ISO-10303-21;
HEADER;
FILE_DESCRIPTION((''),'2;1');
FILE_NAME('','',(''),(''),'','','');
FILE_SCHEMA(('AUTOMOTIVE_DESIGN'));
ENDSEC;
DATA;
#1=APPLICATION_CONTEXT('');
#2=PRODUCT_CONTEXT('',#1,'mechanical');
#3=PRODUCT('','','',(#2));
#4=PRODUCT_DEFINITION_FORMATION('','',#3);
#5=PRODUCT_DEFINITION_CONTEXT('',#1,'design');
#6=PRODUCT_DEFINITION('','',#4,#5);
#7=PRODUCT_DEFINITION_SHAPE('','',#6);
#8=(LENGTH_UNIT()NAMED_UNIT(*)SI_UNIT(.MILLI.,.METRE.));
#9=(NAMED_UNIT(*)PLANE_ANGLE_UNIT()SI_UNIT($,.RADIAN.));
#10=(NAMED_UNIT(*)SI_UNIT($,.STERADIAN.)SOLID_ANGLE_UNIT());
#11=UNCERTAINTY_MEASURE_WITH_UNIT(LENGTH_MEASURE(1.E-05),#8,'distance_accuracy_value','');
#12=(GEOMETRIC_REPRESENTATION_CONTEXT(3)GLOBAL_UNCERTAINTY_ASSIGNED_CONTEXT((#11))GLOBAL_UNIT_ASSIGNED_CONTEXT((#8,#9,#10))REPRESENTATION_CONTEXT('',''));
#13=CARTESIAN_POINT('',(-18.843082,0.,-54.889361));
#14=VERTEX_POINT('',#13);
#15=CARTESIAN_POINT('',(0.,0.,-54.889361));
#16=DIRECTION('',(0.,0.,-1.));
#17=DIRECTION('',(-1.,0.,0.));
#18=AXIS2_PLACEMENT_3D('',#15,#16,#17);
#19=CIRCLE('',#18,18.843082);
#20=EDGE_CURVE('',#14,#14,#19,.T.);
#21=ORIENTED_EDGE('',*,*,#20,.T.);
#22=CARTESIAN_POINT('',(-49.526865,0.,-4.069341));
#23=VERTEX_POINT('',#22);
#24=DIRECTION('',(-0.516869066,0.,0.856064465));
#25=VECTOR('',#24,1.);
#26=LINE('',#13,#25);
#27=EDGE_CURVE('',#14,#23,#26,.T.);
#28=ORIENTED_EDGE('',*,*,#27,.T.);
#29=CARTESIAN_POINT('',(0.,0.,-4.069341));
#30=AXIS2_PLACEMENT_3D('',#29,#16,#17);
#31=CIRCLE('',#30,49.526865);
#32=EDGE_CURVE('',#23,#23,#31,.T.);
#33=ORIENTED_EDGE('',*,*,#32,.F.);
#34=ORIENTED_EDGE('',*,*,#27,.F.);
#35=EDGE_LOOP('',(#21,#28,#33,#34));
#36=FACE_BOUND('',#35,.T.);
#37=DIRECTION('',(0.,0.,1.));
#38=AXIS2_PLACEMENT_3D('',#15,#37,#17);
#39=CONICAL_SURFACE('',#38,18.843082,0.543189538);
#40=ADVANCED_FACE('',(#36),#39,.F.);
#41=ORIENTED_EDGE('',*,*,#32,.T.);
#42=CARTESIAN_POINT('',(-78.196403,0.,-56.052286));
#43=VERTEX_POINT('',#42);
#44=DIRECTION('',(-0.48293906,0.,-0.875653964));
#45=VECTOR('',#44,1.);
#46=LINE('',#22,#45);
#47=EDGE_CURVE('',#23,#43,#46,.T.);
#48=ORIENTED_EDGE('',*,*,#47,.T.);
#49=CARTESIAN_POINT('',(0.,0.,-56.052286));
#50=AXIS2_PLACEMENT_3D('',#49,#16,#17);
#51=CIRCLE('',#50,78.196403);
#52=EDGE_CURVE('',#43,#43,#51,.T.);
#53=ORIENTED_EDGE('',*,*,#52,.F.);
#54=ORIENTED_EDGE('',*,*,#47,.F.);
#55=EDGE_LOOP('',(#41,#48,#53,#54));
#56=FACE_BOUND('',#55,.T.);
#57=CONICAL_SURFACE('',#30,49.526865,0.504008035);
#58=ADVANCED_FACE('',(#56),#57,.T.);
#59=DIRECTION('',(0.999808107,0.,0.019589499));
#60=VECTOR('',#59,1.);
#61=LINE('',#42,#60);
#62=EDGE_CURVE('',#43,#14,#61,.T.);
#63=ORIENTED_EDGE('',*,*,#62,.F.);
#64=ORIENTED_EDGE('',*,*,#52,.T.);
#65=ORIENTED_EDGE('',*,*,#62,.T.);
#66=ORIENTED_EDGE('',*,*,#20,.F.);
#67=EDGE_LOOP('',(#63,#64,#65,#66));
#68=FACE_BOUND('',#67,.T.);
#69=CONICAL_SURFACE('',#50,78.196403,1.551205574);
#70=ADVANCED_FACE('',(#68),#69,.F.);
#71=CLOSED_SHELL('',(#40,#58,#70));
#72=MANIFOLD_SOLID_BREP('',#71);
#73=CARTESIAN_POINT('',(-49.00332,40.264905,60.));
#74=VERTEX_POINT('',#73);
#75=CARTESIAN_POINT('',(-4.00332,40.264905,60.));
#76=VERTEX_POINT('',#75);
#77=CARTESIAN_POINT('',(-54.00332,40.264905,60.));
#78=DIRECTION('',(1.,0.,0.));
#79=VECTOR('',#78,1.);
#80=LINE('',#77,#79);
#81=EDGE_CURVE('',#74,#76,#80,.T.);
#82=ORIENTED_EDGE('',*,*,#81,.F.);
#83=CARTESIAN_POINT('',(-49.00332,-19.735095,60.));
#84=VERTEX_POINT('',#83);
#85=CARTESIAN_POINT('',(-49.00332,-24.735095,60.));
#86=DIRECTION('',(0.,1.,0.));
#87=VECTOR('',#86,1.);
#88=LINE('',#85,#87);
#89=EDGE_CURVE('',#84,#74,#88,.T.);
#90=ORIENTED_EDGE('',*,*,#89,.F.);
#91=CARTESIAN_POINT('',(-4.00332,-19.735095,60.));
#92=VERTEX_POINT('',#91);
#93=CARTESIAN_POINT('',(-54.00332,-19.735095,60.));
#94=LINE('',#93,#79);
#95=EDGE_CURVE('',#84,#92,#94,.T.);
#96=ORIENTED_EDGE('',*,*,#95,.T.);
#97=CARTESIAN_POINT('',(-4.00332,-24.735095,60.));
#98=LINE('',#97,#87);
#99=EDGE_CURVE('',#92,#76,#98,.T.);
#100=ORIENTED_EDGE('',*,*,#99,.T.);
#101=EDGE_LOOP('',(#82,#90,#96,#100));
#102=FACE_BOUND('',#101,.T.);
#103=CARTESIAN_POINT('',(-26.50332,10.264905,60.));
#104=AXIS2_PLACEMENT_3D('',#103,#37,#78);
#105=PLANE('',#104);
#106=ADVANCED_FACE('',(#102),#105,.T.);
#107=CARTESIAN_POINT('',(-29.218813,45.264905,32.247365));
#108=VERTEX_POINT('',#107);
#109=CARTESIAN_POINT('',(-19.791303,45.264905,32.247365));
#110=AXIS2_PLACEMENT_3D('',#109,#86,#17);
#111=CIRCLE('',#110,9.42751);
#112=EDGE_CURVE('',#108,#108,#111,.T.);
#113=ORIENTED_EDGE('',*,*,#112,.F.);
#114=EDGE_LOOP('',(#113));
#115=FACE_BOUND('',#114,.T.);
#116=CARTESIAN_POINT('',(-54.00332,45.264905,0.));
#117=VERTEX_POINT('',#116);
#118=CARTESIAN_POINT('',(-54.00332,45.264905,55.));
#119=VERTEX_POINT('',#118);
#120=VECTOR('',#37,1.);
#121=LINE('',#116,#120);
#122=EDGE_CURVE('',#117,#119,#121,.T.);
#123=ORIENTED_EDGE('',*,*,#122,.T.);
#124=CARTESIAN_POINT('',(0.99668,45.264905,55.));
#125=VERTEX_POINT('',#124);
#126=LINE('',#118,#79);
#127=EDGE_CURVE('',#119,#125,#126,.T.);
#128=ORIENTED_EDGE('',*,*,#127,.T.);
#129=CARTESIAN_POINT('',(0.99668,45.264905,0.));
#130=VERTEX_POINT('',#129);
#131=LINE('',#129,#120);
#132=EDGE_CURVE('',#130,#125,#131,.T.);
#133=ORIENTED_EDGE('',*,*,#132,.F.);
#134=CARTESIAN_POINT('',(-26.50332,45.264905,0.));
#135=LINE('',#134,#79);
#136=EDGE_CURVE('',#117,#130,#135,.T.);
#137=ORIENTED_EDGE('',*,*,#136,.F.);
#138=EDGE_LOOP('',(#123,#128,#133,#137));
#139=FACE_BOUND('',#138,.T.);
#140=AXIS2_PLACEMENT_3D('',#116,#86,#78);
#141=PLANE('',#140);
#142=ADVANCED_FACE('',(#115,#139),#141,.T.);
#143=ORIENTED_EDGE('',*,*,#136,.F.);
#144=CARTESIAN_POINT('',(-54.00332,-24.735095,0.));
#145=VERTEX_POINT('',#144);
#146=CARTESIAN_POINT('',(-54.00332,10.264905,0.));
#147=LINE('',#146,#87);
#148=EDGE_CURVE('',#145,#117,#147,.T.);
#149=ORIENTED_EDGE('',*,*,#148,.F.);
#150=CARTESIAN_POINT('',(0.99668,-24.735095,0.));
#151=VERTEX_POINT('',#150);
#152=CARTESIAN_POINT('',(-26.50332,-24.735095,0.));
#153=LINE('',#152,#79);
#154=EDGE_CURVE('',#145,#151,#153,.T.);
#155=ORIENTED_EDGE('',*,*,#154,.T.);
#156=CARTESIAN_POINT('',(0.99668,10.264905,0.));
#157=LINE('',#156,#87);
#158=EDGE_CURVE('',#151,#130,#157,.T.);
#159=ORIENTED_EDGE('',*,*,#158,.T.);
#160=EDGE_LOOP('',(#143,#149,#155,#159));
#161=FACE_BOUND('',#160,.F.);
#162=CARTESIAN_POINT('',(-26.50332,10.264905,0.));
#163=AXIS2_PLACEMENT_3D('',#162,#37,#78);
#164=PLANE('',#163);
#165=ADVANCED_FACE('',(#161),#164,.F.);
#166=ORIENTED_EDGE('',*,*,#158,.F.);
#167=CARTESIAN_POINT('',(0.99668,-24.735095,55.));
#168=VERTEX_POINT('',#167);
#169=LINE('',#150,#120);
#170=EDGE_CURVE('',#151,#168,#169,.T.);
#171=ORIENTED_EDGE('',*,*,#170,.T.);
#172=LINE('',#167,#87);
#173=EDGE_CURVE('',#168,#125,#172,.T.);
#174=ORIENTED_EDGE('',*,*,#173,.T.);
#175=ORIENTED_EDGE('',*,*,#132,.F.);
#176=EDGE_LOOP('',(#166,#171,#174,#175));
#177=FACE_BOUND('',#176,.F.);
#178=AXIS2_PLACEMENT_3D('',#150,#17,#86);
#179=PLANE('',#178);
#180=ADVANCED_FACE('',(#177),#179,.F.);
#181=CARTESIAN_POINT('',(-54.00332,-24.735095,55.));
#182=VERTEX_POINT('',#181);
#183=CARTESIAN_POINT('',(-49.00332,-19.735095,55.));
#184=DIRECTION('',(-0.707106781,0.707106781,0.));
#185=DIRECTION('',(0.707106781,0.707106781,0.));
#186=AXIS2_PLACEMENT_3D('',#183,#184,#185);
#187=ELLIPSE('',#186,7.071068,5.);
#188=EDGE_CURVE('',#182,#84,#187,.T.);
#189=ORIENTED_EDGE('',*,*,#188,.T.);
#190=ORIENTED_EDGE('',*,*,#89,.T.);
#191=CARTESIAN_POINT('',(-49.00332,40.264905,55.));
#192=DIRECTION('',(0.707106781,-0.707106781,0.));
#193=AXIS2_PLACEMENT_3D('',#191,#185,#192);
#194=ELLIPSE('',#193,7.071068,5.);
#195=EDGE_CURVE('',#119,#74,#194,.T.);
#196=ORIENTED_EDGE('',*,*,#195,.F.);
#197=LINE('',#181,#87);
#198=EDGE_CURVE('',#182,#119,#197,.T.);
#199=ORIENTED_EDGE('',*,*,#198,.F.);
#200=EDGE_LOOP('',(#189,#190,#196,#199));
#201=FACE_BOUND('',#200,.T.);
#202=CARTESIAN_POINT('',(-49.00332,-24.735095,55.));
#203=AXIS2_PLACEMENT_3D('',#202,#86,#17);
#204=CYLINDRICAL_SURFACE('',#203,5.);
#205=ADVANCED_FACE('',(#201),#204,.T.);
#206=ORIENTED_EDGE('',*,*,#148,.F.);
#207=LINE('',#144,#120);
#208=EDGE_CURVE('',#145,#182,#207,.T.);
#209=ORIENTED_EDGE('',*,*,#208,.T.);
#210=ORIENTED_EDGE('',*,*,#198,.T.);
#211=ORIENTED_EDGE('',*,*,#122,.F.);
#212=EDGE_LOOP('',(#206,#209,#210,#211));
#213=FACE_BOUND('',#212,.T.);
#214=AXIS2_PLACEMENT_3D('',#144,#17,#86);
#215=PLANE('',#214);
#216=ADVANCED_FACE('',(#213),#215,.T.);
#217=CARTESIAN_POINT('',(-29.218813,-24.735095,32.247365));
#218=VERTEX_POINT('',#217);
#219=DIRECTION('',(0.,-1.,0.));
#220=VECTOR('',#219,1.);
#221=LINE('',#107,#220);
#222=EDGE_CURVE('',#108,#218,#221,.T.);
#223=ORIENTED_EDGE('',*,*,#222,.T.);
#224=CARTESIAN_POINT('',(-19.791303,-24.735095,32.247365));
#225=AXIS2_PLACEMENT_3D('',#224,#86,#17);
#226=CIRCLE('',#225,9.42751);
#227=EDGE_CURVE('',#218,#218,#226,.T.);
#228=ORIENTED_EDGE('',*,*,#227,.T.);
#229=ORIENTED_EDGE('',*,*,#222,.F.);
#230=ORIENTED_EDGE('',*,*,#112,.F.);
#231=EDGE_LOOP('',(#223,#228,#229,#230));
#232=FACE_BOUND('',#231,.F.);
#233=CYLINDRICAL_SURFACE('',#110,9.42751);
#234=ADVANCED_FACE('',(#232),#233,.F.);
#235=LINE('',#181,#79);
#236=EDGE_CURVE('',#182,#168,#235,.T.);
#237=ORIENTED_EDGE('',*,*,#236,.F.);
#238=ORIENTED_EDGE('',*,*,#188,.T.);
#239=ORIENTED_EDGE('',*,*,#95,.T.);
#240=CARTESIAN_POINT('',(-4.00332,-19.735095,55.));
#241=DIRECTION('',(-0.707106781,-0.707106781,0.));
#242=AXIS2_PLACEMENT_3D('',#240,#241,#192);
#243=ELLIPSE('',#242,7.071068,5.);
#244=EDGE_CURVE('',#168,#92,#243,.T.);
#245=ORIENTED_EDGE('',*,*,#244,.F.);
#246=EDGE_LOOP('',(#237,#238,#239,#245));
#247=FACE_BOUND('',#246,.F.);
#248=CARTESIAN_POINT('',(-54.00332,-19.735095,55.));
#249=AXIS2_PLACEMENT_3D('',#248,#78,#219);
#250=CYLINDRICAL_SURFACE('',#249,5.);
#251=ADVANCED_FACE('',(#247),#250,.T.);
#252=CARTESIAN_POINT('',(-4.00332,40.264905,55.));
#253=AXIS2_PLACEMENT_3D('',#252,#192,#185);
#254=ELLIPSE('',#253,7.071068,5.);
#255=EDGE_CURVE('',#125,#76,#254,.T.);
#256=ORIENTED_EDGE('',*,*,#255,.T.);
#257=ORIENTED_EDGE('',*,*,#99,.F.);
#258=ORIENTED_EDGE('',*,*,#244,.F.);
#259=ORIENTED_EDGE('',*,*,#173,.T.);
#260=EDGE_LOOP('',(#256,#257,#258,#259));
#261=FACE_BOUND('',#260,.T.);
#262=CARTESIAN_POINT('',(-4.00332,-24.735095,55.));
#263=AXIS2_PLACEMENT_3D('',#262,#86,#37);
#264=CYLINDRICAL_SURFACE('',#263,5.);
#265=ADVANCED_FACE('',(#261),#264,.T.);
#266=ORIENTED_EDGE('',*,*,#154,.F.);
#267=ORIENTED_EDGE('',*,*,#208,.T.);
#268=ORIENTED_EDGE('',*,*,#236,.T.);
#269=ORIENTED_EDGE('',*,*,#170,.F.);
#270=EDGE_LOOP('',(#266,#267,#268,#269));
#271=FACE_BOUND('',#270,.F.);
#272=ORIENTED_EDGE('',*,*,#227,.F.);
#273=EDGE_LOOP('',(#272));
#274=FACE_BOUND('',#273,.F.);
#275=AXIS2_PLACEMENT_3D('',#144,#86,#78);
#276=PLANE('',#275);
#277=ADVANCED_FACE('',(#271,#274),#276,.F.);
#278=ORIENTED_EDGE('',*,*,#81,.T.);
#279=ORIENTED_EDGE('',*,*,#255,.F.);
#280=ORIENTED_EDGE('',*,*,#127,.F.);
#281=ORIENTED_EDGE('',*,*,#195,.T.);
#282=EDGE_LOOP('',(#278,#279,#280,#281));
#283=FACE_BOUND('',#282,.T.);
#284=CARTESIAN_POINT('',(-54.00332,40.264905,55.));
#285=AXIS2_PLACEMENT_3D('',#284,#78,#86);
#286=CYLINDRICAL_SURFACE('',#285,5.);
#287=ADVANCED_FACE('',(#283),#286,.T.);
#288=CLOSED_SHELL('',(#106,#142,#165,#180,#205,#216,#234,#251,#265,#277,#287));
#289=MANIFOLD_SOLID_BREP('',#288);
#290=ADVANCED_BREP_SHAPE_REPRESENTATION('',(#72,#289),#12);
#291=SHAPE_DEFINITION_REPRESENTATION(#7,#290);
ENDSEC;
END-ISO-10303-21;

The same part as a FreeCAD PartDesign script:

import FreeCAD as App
import Part
import Sketcher

V = App.Vector
Q = App.Units.Quantity


def edges_at(feature, points):
    """Names of the edges that pass closest to the given points."""
    edges = feature.Shape.Edges
    near = lambda p: min(range(len(edges)), key=lambda i: edges[i].distToShape(Part.Vertex(*p))[0])
    return sorted({f"Edge{near(p) + 1}" for p in points})

doc = App.newDocument("Part")
body = doc.addObject("PartDesign::Body", "Body")

sketch1 = body.newObject("Sketcher::SketchObject", "Sketch")
sketch1.AttachmentSupport = (doc.getObject("XY_Plane"), [""])
sketch1.MapMode = "FlatFace"
sketch1.addGeometry(Part.LineSegment(V(-54, 45, 0), V(-54, -25, 0)), False)
sketch1.addGeometry(Part.LineSegment(V(-54, -25, 0), V(1, -25, 0)), False)
sketch1.addGeometry(Part.LineSegment(V(1, -25, 0), V(1, 45, 0)), False)
sketch1.addGeometry(Part.LineSegment(V(1, 45, 0), V(-54, 45, 0)), False)
sketch1.addConstraint(Sketcher.Constraint("Coincident", 0, 2, 1, 1))
sketch1.addConstraint(Sketcher.Constraint("Coincident", 1, 2, 2, 1))
sketch1.addConstraint(Sketcher.Constraint("Coincident", 2, 2, 3, 1))
sketch1.addConstraint(Sketcher.Constraint("Coincident", 3, 2, 0, 1))
sketch1.addConstraint(Sketcher.Constraint("Vertical", 0))
sketch1.addConstraint(Sketcher.Constraint("Horizontal", 1))
sketch1.addConstraint(Sketcher.Constraint("Vertical", 2))
sketch1.addConstraint(Sketcher.Constraint("Horizontal", 3))
sketch1.addConstraint(Sketcher.Constraint("DistanceX", 1, 1, 1, 2, Q("55 mm")))
sketch1.addConstraint(Sketcher.Constraint("DistanceY", 0, 2, 0, 1, Q("70 mm")))
sketch1.addConstraint(Sketcher.Constraint("DistanceX", 0, 2, -1, 1, Q("54.00332 mm")))
sketch1.addConstraint(Sketcher.Constraint("DistanceY", 0, 2, -1, 1, Q("24.735095 mm")))
pad1 = body.newObject("PartDesign::Pad", "Pad")
pad1.Profile = sketch1
pad1.Length = 60

sketch2 = body.newObject("Sketcher::SketchObject", "Sketch001")
sketch2.AttachmentSupport = (doc.getObject("XZ_Plane"), [""])
sketch2.MapMode = "FlatFace"
sketch2.AttachmentOffset = App.Placement(V(0, 0, -45.264905), App.Rotation())
sketch2.addGeometry(Part.Circle(V(-20, 32, 0), V(0, 0, 1), 9), False)
sketch2.addConstraint(Sketcher.Constraint("Diameter", 0, Q("18.85502 mm")))
sketch2.addConstraint(Sketcher.Constraint("DistanceX", 0, 3, -1, 1, Q("19.791303 mm")))
sketch2.addConstraint(Sketcher.Constraint("DistanceY", -1, 1, 0, 3, Q("32.247365 mm")))
pocket1 = body.newObject("PartDesign::Pocket", "Pocket")
pocket1.Profile = sketch2
pocket1.Length = 90
pocket1.Reversed = True
doc.recompute()

fillet = body.newObject("PartDesign::Fillet", "Fillet")
fillet.Base = (pocket1, edges_at(pocket1, [
    (-26.503, 45.265, 60),
    (-54.003, 10.265, 60),
    (-26.503, -24.735, 60),
    (0.997, 10.265, 60),
]))
fillet.Radius = 5
body2 = doc.addObject("PartDesign::Body", "Body001")

sketch3 = body2.newObject("Sketcher::SketchObject", "Sketch002")
sketch3.AttachmentSupport = (doc.getObject("XZ_Plane001"), [""])
sketch3.MapMode = "FlatFace"
sketch3.addGeometry(Part.LineSegment(V(-19, -55, 0), V(-50, -4, 0)), False)
sketch3.addGeometry(Part.LineSegment(V(-50, -4, 0), V(-78, -56, 0)), False)
sketch3.addGeometry(Part.LineSegment(V(-78, -56, 0), V(-19, -55, 0)), False)
sketch3.addConstraint(Sketcher.Constraint("Coincident", 0, 2, 1, 1))
sketch3.addConstraint(Sketcher.Constraint("Coincident", 1, 2, 2, 1))
sketch3.addConstraint(Sketcher.Constraint("Coincident", 2, 2, 0, 1))
sketch3.addConstraint(Sketcher.Constraint("Equal", 0, 1))
sketch3.addConstraint(Sketcher.Constraint("Equal", 1, 2))
sketch3.addConstraint(Sketcher.Constraint("Distance", 0, Q("59.364712 mm")))
sketch3.addConstraint(Sketcher.Constraint("DistanceY", 0, 2, -1, 1, Q("4.069341 mm")))
sketch3.addConstraint(Sketcher.Constraint("DistanceX", 2, 2, -1, 1, Q("18.843082 mm")))
sketch3.addConstraint(Sketcher.Constraint("DistanceY", 2, 2, -1, 1, Q("54.889361 mm")))
revolution = body2.newObject("PartDesign::Revolution", "Revolution")
revolution.Profile = sketch3
revolution.ReferenceAxis = (sketch3, ["V_Axis"])
revolution.Angle = 360

doc.recompute()
